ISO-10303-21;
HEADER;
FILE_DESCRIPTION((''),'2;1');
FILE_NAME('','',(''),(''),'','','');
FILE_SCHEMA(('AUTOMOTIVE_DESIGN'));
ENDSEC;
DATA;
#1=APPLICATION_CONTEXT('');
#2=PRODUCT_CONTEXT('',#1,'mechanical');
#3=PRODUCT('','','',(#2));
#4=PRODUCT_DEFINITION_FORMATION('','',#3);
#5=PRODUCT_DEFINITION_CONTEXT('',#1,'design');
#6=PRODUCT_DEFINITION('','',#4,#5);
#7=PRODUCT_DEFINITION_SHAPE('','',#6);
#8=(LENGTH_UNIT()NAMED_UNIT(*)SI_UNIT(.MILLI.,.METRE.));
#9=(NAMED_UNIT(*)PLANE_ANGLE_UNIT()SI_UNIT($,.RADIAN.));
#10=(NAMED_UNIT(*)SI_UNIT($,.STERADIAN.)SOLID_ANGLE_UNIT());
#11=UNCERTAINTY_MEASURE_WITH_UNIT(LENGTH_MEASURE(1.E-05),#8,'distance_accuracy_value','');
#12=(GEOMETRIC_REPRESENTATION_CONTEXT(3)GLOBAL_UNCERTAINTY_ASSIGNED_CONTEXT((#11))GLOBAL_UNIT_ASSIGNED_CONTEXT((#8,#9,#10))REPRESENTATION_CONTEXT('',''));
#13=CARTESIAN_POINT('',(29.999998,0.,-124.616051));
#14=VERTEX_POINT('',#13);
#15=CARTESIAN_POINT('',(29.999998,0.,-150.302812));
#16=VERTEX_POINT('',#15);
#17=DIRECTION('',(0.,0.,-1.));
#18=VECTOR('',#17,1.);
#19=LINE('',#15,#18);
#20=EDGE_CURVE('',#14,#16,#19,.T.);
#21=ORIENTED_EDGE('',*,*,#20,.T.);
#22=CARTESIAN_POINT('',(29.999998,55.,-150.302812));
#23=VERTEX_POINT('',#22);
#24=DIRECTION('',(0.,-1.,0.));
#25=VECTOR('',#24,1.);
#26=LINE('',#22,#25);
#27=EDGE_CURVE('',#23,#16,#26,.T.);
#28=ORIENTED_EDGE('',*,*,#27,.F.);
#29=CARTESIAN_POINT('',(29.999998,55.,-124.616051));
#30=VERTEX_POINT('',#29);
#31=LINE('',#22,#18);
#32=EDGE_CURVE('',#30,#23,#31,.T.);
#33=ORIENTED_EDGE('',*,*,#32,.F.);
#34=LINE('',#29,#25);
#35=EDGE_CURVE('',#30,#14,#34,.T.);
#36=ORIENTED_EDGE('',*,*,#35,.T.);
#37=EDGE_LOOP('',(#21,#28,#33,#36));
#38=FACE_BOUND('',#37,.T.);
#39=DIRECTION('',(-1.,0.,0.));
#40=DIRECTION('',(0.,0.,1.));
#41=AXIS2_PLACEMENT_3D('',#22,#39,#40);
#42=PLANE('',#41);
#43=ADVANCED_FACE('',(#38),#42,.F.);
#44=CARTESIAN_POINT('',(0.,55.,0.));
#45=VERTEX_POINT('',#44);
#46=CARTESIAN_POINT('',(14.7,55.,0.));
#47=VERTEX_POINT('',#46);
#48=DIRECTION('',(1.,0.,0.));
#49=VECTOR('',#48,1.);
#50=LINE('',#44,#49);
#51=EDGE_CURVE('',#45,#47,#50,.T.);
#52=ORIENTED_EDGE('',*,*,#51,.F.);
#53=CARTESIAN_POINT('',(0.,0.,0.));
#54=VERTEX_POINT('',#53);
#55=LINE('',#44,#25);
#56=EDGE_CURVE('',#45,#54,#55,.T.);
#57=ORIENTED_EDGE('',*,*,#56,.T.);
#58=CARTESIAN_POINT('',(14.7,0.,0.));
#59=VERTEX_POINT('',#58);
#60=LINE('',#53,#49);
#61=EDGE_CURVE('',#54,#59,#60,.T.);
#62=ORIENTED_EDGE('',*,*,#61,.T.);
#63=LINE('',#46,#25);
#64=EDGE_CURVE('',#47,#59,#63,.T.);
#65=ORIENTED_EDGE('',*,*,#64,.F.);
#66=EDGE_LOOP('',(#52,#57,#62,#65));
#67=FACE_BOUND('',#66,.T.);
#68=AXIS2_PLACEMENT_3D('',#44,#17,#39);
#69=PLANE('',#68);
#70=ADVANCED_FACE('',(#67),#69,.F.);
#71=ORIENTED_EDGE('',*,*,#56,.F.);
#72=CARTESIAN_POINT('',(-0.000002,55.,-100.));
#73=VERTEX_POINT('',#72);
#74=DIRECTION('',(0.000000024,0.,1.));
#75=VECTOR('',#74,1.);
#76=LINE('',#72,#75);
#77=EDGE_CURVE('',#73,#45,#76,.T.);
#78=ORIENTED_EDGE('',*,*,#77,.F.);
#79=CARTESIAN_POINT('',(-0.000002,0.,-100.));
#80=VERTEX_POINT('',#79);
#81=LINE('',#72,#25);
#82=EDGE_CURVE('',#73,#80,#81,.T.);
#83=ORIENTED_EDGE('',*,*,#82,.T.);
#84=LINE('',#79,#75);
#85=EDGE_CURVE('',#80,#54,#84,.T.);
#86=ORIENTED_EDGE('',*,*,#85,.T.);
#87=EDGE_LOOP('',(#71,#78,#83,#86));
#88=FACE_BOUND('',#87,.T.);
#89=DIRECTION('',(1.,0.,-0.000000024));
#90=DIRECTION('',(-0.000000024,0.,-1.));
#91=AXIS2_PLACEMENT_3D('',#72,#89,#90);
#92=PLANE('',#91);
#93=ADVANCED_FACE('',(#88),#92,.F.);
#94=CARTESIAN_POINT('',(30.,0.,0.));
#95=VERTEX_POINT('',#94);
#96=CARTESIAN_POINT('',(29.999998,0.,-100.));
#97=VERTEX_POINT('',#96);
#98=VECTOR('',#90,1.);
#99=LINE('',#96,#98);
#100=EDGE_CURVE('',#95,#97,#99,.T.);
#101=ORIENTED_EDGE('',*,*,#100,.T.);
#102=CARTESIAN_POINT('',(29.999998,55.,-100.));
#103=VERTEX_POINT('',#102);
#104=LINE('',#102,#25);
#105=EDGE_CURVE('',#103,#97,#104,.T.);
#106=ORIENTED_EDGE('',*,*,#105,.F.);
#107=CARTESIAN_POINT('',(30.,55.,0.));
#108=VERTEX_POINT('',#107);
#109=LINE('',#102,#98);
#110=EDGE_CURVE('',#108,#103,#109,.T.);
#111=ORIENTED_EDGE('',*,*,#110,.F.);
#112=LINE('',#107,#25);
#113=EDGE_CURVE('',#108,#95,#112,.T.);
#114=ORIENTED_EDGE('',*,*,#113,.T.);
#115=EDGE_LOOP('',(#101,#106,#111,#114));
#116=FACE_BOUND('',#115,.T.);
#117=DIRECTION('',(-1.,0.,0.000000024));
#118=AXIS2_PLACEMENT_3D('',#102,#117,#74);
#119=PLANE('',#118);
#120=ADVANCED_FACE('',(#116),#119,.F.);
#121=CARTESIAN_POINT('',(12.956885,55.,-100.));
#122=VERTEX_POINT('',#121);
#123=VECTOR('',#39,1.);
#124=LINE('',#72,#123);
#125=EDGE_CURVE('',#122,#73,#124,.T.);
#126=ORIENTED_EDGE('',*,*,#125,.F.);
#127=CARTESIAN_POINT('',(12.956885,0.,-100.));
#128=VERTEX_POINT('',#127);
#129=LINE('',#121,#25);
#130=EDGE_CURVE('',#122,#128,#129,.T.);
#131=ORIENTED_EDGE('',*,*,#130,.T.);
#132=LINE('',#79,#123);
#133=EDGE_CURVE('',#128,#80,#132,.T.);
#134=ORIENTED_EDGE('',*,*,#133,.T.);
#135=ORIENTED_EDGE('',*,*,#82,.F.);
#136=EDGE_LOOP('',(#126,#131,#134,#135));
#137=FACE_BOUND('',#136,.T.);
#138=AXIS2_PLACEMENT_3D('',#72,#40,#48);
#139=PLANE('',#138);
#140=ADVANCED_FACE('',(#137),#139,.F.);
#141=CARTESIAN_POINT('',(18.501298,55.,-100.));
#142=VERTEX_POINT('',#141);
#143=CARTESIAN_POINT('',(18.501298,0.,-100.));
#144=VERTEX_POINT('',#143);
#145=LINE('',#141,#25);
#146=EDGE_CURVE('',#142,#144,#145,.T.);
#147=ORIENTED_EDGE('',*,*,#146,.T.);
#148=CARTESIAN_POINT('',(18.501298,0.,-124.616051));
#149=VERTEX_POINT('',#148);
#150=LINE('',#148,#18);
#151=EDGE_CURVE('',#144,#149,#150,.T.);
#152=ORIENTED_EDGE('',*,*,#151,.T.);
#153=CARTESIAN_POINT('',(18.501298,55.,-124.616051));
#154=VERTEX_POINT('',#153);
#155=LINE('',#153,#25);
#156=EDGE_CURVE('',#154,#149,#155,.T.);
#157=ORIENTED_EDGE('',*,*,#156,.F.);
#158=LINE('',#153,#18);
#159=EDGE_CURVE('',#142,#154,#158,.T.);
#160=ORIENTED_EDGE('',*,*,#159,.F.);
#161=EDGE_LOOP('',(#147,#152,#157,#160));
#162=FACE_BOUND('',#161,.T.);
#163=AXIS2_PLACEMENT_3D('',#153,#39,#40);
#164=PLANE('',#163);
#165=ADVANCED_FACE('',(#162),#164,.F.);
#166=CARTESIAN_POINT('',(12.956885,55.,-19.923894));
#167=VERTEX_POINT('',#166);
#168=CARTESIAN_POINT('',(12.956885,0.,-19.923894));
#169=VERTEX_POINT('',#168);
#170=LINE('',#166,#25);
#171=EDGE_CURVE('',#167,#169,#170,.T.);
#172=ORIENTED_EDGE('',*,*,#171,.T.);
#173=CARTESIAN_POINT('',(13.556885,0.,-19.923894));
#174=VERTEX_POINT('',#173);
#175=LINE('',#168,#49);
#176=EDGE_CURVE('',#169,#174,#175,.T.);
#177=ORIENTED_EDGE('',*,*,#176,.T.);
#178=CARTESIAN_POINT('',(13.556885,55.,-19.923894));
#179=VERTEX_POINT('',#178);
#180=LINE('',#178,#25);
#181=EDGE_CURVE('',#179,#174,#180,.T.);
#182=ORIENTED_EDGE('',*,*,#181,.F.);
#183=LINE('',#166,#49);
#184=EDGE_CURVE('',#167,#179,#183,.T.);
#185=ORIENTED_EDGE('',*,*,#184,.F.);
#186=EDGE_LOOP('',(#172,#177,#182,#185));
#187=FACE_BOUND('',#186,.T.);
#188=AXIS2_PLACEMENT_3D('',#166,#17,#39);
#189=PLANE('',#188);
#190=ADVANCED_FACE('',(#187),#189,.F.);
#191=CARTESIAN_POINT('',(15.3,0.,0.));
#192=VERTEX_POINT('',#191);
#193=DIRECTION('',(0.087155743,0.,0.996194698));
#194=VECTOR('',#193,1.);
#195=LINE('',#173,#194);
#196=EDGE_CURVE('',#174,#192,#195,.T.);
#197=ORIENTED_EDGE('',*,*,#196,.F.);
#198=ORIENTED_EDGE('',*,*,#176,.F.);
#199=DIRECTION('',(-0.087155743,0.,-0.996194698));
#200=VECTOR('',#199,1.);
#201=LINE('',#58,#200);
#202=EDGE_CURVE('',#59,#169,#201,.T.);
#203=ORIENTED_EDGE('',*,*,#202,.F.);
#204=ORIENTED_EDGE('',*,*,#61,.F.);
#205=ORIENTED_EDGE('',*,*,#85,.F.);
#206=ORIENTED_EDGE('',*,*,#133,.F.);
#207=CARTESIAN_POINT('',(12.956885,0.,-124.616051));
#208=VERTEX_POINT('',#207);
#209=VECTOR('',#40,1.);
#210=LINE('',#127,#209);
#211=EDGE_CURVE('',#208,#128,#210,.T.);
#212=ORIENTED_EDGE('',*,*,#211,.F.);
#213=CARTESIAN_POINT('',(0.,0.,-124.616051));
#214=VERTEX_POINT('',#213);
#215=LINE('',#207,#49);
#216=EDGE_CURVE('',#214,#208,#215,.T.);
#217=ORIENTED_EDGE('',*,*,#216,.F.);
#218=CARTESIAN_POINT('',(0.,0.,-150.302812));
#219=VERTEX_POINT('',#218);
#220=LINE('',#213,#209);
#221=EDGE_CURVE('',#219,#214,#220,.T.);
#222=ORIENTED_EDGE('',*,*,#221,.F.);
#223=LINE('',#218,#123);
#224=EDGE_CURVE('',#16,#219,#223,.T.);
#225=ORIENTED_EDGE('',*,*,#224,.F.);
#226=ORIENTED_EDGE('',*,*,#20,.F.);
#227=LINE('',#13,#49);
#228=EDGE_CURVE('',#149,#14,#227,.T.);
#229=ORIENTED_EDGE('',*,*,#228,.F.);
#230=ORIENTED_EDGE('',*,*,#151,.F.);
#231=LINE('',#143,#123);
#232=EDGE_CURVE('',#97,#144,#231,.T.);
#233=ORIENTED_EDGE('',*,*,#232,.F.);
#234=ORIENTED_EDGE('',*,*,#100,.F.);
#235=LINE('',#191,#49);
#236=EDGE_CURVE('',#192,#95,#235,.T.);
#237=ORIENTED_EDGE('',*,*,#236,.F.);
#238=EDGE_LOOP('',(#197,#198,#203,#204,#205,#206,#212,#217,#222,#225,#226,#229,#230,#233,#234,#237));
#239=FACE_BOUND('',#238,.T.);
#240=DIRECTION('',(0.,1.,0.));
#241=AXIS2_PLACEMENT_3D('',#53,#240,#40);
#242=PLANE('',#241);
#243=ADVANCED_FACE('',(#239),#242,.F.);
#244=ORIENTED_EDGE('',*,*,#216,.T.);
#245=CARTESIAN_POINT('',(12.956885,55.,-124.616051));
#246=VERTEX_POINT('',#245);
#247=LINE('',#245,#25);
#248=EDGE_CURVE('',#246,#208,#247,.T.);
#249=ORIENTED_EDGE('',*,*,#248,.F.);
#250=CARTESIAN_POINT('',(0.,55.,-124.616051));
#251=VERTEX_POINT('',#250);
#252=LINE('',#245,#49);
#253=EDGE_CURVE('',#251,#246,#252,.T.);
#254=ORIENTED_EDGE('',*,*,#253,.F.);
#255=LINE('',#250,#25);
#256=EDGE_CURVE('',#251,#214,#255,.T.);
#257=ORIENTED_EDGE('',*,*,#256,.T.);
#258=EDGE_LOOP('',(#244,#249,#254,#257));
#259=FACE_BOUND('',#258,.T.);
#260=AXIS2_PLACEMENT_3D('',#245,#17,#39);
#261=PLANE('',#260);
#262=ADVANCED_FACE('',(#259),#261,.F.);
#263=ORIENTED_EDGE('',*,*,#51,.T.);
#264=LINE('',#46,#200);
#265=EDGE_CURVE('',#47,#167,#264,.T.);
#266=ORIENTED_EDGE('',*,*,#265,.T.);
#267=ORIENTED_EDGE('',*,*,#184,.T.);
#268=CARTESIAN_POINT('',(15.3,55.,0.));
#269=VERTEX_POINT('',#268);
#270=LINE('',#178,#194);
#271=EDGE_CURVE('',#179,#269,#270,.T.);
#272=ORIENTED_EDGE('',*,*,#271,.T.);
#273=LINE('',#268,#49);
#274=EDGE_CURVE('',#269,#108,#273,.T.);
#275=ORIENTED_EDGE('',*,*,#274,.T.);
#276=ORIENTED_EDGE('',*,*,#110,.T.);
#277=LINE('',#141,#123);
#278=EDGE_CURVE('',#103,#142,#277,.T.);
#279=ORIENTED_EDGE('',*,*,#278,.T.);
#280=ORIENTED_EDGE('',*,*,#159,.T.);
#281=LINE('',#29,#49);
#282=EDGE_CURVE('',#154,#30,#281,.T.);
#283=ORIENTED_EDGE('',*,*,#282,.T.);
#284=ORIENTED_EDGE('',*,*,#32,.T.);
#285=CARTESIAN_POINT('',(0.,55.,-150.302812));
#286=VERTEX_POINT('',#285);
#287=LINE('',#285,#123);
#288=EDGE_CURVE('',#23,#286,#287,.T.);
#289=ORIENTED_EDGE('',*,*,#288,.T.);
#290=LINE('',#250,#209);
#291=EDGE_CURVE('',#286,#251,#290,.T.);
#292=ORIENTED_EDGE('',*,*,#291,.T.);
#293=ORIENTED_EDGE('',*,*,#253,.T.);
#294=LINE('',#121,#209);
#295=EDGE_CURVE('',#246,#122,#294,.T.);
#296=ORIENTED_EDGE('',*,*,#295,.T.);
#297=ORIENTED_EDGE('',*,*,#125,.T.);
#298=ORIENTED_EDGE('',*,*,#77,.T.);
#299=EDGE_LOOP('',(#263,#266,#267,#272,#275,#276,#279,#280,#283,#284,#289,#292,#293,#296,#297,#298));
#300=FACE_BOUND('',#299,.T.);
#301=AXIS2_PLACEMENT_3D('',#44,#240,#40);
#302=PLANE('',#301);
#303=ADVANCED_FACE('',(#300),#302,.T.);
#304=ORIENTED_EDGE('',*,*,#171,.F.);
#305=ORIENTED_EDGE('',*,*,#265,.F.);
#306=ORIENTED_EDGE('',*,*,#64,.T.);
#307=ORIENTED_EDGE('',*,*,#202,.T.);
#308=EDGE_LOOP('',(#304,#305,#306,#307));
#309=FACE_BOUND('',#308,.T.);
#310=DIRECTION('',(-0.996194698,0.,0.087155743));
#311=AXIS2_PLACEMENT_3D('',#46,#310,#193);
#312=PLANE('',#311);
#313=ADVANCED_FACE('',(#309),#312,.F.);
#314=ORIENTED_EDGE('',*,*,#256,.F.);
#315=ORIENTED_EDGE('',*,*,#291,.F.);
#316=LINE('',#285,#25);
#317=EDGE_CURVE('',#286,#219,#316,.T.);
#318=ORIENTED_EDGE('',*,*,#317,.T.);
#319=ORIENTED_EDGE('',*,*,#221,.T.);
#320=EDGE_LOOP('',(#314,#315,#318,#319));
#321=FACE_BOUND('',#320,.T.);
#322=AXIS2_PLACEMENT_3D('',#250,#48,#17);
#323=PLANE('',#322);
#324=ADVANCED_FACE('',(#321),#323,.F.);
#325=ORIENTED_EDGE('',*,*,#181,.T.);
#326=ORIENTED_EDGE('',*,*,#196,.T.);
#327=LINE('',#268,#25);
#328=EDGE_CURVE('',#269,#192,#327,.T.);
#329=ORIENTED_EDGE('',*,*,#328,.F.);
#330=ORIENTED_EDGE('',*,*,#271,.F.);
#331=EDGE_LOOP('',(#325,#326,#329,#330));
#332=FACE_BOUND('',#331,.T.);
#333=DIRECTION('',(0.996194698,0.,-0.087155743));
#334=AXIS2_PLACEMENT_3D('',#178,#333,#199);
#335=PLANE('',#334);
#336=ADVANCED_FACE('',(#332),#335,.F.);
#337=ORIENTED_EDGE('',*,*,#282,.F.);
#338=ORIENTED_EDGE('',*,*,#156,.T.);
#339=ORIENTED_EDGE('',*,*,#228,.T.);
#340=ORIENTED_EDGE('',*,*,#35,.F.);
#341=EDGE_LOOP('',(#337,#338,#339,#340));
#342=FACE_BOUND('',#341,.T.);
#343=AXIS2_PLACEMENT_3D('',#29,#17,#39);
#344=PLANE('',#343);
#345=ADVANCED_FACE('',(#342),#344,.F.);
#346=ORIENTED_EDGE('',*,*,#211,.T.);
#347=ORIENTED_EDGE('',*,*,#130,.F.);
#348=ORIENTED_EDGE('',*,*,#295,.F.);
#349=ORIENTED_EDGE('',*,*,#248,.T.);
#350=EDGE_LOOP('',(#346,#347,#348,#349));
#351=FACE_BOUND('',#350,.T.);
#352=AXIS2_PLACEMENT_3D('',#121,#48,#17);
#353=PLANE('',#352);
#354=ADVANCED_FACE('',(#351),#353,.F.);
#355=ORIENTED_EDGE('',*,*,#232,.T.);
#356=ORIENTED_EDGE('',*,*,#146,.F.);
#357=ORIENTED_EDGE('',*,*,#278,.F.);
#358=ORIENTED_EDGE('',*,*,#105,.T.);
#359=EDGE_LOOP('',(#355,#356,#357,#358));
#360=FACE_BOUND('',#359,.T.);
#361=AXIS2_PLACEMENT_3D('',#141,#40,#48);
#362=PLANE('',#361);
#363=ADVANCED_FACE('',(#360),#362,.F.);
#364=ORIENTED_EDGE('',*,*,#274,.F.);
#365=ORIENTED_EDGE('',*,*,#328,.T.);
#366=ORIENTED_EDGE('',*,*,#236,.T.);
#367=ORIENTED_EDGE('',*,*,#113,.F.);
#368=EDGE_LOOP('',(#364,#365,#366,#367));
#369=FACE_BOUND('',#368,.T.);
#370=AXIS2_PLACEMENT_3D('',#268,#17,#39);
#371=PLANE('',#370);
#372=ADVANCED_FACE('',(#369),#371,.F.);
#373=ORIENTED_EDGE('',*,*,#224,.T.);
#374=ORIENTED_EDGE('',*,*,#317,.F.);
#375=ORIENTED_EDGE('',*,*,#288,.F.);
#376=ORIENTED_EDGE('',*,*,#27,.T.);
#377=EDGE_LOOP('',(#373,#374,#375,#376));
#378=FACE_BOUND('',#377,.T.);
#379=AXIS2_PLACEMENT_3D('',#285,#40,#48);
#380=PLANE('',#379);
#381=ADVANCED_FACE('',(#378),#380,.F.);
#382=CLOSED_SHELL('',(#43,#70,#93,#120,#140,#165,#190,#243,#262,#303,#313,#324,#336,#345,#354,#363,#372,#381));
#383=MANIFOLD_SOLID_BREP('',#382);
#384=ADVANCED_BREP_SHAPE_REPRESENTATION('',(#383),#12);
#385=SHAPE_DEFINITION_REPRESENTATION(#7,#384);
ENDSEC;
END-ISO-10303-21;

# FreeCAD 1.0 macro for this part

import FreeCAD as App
import Part
import Sketcher
from FreeCAD import Vector
Q = App.Units.Quantity


def add_polygon(sketch, points):
    """Adds a closed chain of lines whose ends are joined by coincident constraints."""
    first, n = sketch.GeometryCount, len(points)
    for a, b in zip(points, points[1:] + points[:1]):
        sketch.addGeometry(Part.LineSegment(App.Vector(*a, 0), App.Vector(*b, 0)), False)
    for i in range(n):
        sketch.addConstraint(Sketcher.Constraint("Coincident", first + i, 2, first + (i + 1) % n, 1))

doc = App.newDocument("Part")
body = doc.addObject("PartDesign::Body", "Body")

# Sketch on XZ plane
sketch1 = doc.addObject("Sketcher::SketchObject", "Sketch")
body.addObject(sketch1)
sketch1.AttachmentSupport = (doc.XZ_Plane, [""])
sketch1.MapMode = "FlatFace"
add_polygon(sketch1, [(14.7, 0), (13, -19.9), (13.6, -19.9), (15.3, 0), (30, 0), (30, -100), (18.5, -100), (18.5, -124.6), (30, -124.6), (30, -150.3), (0, -150.3), (0, -124.6), (13, -124.6), (13, -100), (0, -100), (0, 0)])  # lines 0-15
sketch1.addConstraint([
    Sketcher.Constraint("Horizontal", 1),
    Sketcher.Constraint("Horizontal", 3),
    Sketcher.Constraint("Horizontal", 5),
    Sketcher.Constraint("Vertical", 6),
    Sketcher.Constraint("Horizontal", 7),
    Sketcher.Constraint("Vertical", 8),
    Sketcher.Constraint("Horizontal", 9),
    Sketcher.Constraint("Vertical", 10),
    Sketcher.Constraint("Horizontal", 11),
    Sketcher.Constraint("Vertical", 12),
    Sketcher.Constraint("Horizontal", 13),
    Sketcher.Constraint("Horizontal", 15),
    Sketcher.Constraint("Coincident", 14, 2, -1, 1),
    Sketcher.Constraint("PointOnObject", 2, 2, -1),
    Sketcher.Constraint("PointOnObject", 9, 2, -2),
    Sketcher.Constraint("Parallel", 0, 2),
    Sketcher.Constraint("Parallel", 4, 14),
    Sketcher.Constraint("Horizontal", 7, 2, 10, 2),
    Sketcher.Constraint("Horizontal", 5, 2, 12, 2),
    Sketcher.Constraint("Vertical", 4, 2, 7, 2),
    Sketcher.Constraint("Vertical", 0, 2, 11, 2),
    Sketcher.Constraint("Equal", 3, 15),
    Sketcher.Constraint("Angle", 0, Q("-95 deg")),
    Sketcher.Constraint("Angle", 4, Q("-90.000001 deg")),
    Sketcher.Constraint("Distance", 0, Q("20 mm")),
    Sketcher.Constraint("Distance", 4, Q("100 mm")),
    Sketcher.Constraint("DistanceX", 1, 1, 1, 2, Q("0.6 mm")),
    Sketcher.Constraint("DistanceX", 3, 1, 3, 2, Q("14.7 mm")),
    Sketcher.Constraint("DistanceX", 5, 2, 5, 1, Q("11.4987 mm")),
    Sketcher.Constraint("DistanceY", 6, 2, 6, 1, Q("24.616051 mm")),
    Sketcher.Constraint("DistanceY", 8, 2, 8, 1, Q("25.686761 mm")),
])
pad1 = doc.addObject("PartDesign::Pad", "Pad")
body.addObject(pad1)
pad1.Profile = sketch1
pad1.Length = 55
pad1.Reversed = True

doc.recompute()
